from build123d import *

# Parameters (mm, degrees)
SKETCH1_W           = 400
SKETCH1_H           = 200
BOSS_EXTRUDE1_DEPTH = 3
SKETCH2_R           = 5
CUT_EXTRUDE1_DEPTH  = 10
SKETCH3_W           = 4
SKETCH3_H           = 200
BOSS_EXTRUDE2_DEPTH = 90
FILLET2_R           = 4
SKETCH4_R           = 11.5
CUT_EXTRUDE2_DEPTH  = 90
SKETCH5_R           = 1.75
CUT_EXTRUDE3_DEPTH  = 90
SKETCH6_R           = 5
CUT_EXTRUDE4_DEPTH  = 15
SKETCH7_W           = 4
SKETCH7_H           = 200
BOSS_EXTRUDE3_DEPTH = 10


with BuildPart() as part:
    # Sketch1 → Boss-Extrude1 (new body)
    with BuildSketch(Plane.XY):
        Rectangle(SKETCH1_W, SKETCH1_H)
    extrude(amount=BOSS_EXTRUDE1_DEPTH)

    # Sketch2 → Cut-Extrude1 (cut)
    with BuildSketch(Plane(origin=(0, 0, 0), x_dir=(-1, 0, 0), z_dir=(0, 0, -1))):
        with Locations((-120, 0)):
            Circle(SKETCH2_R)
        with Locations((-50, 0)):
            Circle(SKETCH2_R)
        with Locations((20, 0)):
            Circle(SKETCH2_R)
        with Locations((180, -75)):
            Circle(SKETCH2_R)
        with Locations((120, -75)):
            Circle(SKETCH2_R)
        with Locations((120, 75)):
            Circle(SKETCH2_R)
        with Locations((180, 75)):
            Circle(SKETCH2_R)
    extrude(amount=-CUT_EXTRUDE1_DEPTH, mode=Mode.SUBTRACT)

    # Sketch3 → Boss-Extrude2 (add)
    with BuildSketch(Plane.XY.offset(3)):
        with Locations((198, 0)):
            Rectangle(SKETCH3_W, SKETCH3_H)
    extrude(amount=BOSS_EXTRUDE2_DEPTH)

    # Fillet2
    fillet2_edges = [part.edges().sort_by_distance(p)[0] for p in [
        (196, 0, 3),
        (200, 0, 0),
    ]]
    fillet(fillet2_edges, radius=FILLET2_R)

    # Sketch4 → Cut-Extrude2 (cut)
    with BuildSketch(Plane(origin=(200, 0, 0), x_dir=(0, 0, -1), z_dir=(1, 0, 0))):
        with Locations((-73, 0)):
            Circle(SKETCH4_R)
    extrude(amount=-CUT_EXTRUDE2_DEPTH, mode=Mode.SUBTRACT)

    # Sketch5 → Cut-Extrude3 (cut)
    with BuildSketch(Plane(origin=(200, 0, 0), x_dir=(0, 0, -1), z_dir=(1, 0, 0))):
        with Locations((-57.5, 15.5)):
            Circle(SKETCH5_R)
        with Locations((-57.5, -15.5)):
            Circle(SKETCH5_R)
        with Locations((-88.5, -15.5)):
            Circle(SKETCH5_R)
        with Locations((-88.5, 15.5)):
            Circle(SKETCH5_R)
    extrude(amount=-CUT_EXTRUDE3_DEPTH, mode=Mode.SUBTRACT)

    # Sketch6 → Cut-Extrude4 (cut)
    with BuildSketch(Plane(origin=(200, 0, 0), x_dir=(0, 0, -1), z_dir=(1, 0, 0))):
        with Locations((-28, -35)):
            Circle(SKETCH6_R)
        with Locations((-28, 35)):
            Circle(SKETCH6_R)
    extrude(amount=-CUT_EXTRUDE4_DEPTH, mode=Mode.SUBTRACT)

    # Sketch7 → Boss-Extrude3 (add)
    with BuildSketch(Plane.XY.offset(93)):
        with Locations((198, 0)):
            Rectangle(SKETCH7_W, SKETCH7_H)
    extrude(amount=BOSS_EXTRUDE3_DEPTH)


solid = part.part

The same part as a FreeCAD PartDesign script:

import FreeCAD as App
import Part
import Sketcher
from FreeCAD import Vector
Q = App.Units.Quantity


def edges_at(feature, points):
    """Names of the edges that pass closest to the given points."""
    edges = feature.Shape.Edges
    near = lambda p: min(range(len(edges)), key=lambda i: edges[i].distToShape(Part.Vertex(*p))[0])
    return sorted({f"Edge{near(p) + 1}" for p in points})


def add_polygon(sketch, points):
    """Adds a closed chain of lines whose ends are joined by coincident constraints."""
    first, n = sketch.GeometryCount, len(points)
    for a, b in zip(points, points[1:] + points[:1]):
        sketch.addGeometry(Part.LineSegment(App.Vector(*a, 0), App.Vector(*b, 0)), False)
    for i in range(n):
        sketch.addConstraint(Sketcher.Constraint("Coincident", first + i, 2, first + (i + 1) % n, 1))

doc = App.newDocument("Part")
body = doc.addObject("PartDesign::Body", "Body")

# Sketch on XY plane
sketch1 = doc.addObject("Sketcher::SketchObject", "Sketch")
body.addObject(sketch1)
sketch1.AttachmentSupport = (doc.XY_Plane, [""])
sketch1.MapMode = "FlatFace"
add_polygon(sketch1, [(-200, 100), (-200, -100), (200, -100), (200, 100)])  # lines 0-3
sketch1.addConstraint([
    Sketcher.Constraint("Vertical", 0),
    Sketcher.Constraint("Horizontal", 1),
    Sketcher.Constraint("Vertical", 2),
    Sketcher.Constraint("Horizontal", 3),
    Sketcher.Constraint("Symmetric", 0, 2, 2, 2, -1, 1),
    Sketcher.Constraint("DistanceX", 1, 1, 1, 2, Q("400 mm")),
    Sketcher.Constraint("DistanceY", 0, 2, 0, 1, Q("200 mm")),
])
pad1 = doc.addObject("PartDesign::Pad", "Pad")
body.addObject(pad1)
pad1.Profile = sketch1
pad1.Length = 3

# Sketch on XY plane
sketch2 = doc.addObject("Sketcher::SketchObject", "Sketch001")
body.addObject(sketch2)
sketch2.AttachmentSupport = (doc.XY_Plane, [""])
sketch2.MapMode = "FlatFace"
sketch2.addGeometry([
    Part.Circle(Vector(120, 0, 0), Vector(0, 0, 1), 5),  # 0
    Part.Circle(Vector(50, 0, 0), Vector(0, 0, 1), 5),  # 1
    Part.Circle(Vector(-20, 0, 0), Vector(0, 0, 1), 5),  # 2
    Part.Circle(Vector(-180, -75, 0), Vector(0, 0, 1), 5),  # 3
    Part.Circle(Vector(-120, -75, 0), Vector(0, 0, 1), 5),  # 4
    Part.Circle(Vector(-120, 75, 0), Vector(0, 0, 1), 5),  # 5
    Part.Circle(Vector(-180, 75, 0), Vector(0, 0, 1), 5),  # 6
], False)
sketch2.addConstraint([
    Sketcher.Constraint("Equal", 0, 1),
    Sketcher.Constraint("Equal", 1, 2),
    Sketcher.Constraint("Equal", 2, 3),
    Sketcher.Constraint("Equal", 3, 4),
    Sketcher.Constraint("Equal", 4, 5),
    Sketcher.Constraint("Equal", 5, 6),
    Sketcher.Constraint("Symmetric", 4, 3, 5, 3, -1),
    Sketcher.Constraint("Symmetric", 3, 3, 6, 3, -1),
    Sketcher.Constraint("PointOnObject", 0, 3, -1),
    Sketcher.Constraint("PointOnObject", 1, 3, -1),
    Sketcher.Constraint("PointOnObject", 2, 3, -1),
    Sketcher.Constraint("Horizontal", 3, 3, 4, 3),
    Sketcher.Constraint("Diameter", 0, Q("10 mm")),
    Sketcher.Constraint("DistanceX", -1, 1, 0, 3, Q("120 mm")),
    Sketcher.Constraint("DistanceX", -1, 1, 1, 3, Q("50 mm")),
    Sketcher.Constraint("DistanceX", 2, 3, -1, 1, Q("20 mm")),
    Sketcher.Constraint("DistanceX", 3, 3, -1, 1, Q("180 mm")),
    Sketcher.Constraint("DistanceY", 3, 3, -1, 1, Q("75 mm")),
    Sketcher.Constraint("DistanceX", 4, 3, -1, 1, Q("120 mm")),
])
pocket1 = doc.addObject("PartDesign::Pocket", "Pocket")
body.addObject(pocket1)
pocket1.Profile = sketch2
pocket1.Length = 10
pocket1.Reversed = True

# Sketch on XY plane
sketch3 = doc.addObject("Sketcher::SketchObject", "Sketch002")
body.addObject(sketch3)
sketch3.AttachmentSupport = (doc.XY_Plane, [""])
sketch3.MapMode = "FlatFace"
sketch3.AttachmentOffset = App.Placement(Vector(0, 0, 3), App.Rotation())
add_polygon(sketch3, [(196, 100), (196, -100), (200, -100), (200, 100)])  # lines 0-3
sketch3.addConstraint([
    Sketcher.Constraint("Vertical", 0),
    Sketcher.Constraint("Horizontal", 1),
    Sketcher.Constraint("Vertical", 2),
    Sketcher.Constraint("Horizontal", 3),
    Sketcher.Constraint("DistanceX", 1, 1, 1, 2, Q("4 mm")),
    Sketcher.Constraint("DistanceY", 0, 2, 0, 1, Q("200 mm")),
    Sketcher.Constraint("DistanceX", -1, 1, 0, 2, Q("196 mm")),
    Sketcher.Constraint("DistanceY", 0, 2, -1, 1, Q("100 mm")),
])
pad2 = doc.addObject("PartDesign::Pad", "Pad001")
body.addObject(pad2)
pad2.Profile = sketch3
pad2.Length = 90
doc.recompute()

fillet = doc.addObject("PartDesign::Fillet", "Fillet")
body.addObject(fillet)
fillet.Base = (pad2, edges_at(pad2, [(196, 0, 3), (200, 0, 0)]))
fillet.Radius = 4

# Sketch on YZ plane
sketch4 = doc.addObject("Sketcher::SketchObject", "Sketch003")
body.addObject(sketch4)
sketch4.AttachmentSupport = (doc.YZ_Plane, [""])
sketch4.MapMode = "FlatFace"
sketch4.AttachmentOffset = App.Placement(Vector(0, 0, 200), App.Rotation())
sketch4.addGeometry(Part.Circle(Vector(0, 73, 0), Vector(0, 0, 1), 12), False)
sketch4.addConstraint([
    Sketcher.Constraint("PointOnObject", 0, 3, -2),
    Sketcher.Constraint("Diameter", 0, Q("23 mm")),
    Sketcher.Constraint("DistanceY", -1, 1, 0, 3, Q("73 mm")),
])
pocket2 = doc.addObject("PartDesign::Pocket", "Pocket001")
body.addObject(pocket2)
pocket2.Profile = sketch4
pocket2.Length = 90

# Sketch on YZ plane
sketch5 = doc.addObject("Sketcher::SketchObject", "Sketch004")
body.addObject(sketch5)
sketch5.AttachmentSupport = (doc.YZ_Plane, [""])
sketch5.MapMode = "FlatFace"
sketch5.AttachmentOffset = App.Placement(Vector(0, 0, 200), App.Rotation())
sketch5.addGeometry([
    Part.Circle(Vector(15.5, 57.5, 0), Vector(0, 0, 1), 1.8),
    Part.Circle(Vector(-15.5, 57.5, 0), Vector(0, 0, 1), 1.8),
    Part.Circle(Vector(-15.5, 88.5, 0), Vector(0, 0, 1), 1.8),
    Part.Circle(Vector(15.5, 88.5, 0), Vector(0, 0, 1), 1.8),
], False)
sketch5.addConstraint([
    Sketcher.Constraint("Equal", 0, 1),
    Sketcher.Constraint("Equal", 1, 2),
    Sketcher.Constraint("Equal", 2, 3),
    Sketcher.Constraint("Symmetric", 0, 3, 1, 3, -2),
    Sketcher.Constraint("Symmetric", 2, 3, 3, 3, -2),
    Sketcher.Constraint("Vertical", 1, 3, 2, 3),
    Sketcher.Constraint("Diameter", 0, Q("3.5 mm")),
    Sketcher.Constraint("DistanceX", 1, 3, 0, 3, Q("31 mm")),
    Sketcher.Constraint("DistanceY", 1, 3, 2, 3, Q("31 mm")),
    Sketcher.Constraint("DistanceY", -1, 1, 0, 3, Q("57.5 mm")),
])
pocket3 = doc.addObject("PartDesign::Pocket", "Pocket002")
body.addObject(pocket3)
pocket3.Profile = sketch5
pocket3.Length = 90

# Sketch on YZ plane
sketch6 = doc.addObject("Sketcher::SketchObject", "Sketch005")
body.addObject(sketch6)
sketch6.AttachmentSupport = (doc.YZ_Plane, [""])
sketch6.MapMode = "FlatFace"
sketch6.AttachmentOffset = App.Placement(Vector(0, 0, 200), App.Rotation())
sketch6.addGeometry([
    Part.Circle(Vector(-35, 28, 0), Vector(0, 0, 1), 5),
    Part.Circle(Vector(35, 28, 0), Vector(0, 0, 1), 5),
], False)
sketch6.addConstraint([
    Sketcher.Constraint("Equal", 0, 1),
    Sketcher.Constraint("Symmetric", 0, 3, 1, 3, -2),
    Sketcher.Constraint("Diameter", 0, Q("10 mm")),
    Sketcher.Constraint("DistanceX", 0, 3, -1, 1, Q("35 mm")),
    Sketcher.Constraint("DistanceY", -1, 1, 0, 3, Q("28 mm")),
])
pocket4 = doc.addObject("PartDesign::Pocket", "Pocket003")
body.addObject(pocket4)
pocket4.Profile = sketch6
pocket4.Length = 15

# Sketch on XY plane
sketch7 = doc.addObject("Sketcher::SketchObject", "Sketch006")
body.addObject(sketch7)
sketch7.AttachmentSupport = (doc.XY_Plane, [""])
sketch7.MapMode = "FlatFace"
sketch7.AttachmentOffset = App.Placement(Vector(0, 0, 93), App.Rotation())
add_polygon(sketch7, [(196, 100), (196, -100), (200, -100), (200, 100)])  # lines 0-3
sketch7.addConstraint([
    Sketcher.Constraint("Vertical", 0),
    Sketcher.Constraint("Horizontal", 1),
    Sketcher.Constraint("Vertical", 2),
    Sketcher.Constraint("Horizontal", 3),
    Sketcher.Constraint("DistanceX", 1, 1, 1, 2, Q("4 mm")),
    Sketcher.Constraint("DistanceY", 0, 2, 0, 1, Q("200 mm")),
    Sketcher.Constraint("DistanceX", -1, 1, 0, 2, Q("196 mm")),
    Sketcher.Constraint("DistanceY", 0, 2, -1, 1, Q("100 mm")),
])
pad3 = doc.addObject("PartDesign::Pad", "Pad002")
body.addObject(pad3)
pad3.Profile = sketch7
pad3.Length = 10

doc.recompute()
